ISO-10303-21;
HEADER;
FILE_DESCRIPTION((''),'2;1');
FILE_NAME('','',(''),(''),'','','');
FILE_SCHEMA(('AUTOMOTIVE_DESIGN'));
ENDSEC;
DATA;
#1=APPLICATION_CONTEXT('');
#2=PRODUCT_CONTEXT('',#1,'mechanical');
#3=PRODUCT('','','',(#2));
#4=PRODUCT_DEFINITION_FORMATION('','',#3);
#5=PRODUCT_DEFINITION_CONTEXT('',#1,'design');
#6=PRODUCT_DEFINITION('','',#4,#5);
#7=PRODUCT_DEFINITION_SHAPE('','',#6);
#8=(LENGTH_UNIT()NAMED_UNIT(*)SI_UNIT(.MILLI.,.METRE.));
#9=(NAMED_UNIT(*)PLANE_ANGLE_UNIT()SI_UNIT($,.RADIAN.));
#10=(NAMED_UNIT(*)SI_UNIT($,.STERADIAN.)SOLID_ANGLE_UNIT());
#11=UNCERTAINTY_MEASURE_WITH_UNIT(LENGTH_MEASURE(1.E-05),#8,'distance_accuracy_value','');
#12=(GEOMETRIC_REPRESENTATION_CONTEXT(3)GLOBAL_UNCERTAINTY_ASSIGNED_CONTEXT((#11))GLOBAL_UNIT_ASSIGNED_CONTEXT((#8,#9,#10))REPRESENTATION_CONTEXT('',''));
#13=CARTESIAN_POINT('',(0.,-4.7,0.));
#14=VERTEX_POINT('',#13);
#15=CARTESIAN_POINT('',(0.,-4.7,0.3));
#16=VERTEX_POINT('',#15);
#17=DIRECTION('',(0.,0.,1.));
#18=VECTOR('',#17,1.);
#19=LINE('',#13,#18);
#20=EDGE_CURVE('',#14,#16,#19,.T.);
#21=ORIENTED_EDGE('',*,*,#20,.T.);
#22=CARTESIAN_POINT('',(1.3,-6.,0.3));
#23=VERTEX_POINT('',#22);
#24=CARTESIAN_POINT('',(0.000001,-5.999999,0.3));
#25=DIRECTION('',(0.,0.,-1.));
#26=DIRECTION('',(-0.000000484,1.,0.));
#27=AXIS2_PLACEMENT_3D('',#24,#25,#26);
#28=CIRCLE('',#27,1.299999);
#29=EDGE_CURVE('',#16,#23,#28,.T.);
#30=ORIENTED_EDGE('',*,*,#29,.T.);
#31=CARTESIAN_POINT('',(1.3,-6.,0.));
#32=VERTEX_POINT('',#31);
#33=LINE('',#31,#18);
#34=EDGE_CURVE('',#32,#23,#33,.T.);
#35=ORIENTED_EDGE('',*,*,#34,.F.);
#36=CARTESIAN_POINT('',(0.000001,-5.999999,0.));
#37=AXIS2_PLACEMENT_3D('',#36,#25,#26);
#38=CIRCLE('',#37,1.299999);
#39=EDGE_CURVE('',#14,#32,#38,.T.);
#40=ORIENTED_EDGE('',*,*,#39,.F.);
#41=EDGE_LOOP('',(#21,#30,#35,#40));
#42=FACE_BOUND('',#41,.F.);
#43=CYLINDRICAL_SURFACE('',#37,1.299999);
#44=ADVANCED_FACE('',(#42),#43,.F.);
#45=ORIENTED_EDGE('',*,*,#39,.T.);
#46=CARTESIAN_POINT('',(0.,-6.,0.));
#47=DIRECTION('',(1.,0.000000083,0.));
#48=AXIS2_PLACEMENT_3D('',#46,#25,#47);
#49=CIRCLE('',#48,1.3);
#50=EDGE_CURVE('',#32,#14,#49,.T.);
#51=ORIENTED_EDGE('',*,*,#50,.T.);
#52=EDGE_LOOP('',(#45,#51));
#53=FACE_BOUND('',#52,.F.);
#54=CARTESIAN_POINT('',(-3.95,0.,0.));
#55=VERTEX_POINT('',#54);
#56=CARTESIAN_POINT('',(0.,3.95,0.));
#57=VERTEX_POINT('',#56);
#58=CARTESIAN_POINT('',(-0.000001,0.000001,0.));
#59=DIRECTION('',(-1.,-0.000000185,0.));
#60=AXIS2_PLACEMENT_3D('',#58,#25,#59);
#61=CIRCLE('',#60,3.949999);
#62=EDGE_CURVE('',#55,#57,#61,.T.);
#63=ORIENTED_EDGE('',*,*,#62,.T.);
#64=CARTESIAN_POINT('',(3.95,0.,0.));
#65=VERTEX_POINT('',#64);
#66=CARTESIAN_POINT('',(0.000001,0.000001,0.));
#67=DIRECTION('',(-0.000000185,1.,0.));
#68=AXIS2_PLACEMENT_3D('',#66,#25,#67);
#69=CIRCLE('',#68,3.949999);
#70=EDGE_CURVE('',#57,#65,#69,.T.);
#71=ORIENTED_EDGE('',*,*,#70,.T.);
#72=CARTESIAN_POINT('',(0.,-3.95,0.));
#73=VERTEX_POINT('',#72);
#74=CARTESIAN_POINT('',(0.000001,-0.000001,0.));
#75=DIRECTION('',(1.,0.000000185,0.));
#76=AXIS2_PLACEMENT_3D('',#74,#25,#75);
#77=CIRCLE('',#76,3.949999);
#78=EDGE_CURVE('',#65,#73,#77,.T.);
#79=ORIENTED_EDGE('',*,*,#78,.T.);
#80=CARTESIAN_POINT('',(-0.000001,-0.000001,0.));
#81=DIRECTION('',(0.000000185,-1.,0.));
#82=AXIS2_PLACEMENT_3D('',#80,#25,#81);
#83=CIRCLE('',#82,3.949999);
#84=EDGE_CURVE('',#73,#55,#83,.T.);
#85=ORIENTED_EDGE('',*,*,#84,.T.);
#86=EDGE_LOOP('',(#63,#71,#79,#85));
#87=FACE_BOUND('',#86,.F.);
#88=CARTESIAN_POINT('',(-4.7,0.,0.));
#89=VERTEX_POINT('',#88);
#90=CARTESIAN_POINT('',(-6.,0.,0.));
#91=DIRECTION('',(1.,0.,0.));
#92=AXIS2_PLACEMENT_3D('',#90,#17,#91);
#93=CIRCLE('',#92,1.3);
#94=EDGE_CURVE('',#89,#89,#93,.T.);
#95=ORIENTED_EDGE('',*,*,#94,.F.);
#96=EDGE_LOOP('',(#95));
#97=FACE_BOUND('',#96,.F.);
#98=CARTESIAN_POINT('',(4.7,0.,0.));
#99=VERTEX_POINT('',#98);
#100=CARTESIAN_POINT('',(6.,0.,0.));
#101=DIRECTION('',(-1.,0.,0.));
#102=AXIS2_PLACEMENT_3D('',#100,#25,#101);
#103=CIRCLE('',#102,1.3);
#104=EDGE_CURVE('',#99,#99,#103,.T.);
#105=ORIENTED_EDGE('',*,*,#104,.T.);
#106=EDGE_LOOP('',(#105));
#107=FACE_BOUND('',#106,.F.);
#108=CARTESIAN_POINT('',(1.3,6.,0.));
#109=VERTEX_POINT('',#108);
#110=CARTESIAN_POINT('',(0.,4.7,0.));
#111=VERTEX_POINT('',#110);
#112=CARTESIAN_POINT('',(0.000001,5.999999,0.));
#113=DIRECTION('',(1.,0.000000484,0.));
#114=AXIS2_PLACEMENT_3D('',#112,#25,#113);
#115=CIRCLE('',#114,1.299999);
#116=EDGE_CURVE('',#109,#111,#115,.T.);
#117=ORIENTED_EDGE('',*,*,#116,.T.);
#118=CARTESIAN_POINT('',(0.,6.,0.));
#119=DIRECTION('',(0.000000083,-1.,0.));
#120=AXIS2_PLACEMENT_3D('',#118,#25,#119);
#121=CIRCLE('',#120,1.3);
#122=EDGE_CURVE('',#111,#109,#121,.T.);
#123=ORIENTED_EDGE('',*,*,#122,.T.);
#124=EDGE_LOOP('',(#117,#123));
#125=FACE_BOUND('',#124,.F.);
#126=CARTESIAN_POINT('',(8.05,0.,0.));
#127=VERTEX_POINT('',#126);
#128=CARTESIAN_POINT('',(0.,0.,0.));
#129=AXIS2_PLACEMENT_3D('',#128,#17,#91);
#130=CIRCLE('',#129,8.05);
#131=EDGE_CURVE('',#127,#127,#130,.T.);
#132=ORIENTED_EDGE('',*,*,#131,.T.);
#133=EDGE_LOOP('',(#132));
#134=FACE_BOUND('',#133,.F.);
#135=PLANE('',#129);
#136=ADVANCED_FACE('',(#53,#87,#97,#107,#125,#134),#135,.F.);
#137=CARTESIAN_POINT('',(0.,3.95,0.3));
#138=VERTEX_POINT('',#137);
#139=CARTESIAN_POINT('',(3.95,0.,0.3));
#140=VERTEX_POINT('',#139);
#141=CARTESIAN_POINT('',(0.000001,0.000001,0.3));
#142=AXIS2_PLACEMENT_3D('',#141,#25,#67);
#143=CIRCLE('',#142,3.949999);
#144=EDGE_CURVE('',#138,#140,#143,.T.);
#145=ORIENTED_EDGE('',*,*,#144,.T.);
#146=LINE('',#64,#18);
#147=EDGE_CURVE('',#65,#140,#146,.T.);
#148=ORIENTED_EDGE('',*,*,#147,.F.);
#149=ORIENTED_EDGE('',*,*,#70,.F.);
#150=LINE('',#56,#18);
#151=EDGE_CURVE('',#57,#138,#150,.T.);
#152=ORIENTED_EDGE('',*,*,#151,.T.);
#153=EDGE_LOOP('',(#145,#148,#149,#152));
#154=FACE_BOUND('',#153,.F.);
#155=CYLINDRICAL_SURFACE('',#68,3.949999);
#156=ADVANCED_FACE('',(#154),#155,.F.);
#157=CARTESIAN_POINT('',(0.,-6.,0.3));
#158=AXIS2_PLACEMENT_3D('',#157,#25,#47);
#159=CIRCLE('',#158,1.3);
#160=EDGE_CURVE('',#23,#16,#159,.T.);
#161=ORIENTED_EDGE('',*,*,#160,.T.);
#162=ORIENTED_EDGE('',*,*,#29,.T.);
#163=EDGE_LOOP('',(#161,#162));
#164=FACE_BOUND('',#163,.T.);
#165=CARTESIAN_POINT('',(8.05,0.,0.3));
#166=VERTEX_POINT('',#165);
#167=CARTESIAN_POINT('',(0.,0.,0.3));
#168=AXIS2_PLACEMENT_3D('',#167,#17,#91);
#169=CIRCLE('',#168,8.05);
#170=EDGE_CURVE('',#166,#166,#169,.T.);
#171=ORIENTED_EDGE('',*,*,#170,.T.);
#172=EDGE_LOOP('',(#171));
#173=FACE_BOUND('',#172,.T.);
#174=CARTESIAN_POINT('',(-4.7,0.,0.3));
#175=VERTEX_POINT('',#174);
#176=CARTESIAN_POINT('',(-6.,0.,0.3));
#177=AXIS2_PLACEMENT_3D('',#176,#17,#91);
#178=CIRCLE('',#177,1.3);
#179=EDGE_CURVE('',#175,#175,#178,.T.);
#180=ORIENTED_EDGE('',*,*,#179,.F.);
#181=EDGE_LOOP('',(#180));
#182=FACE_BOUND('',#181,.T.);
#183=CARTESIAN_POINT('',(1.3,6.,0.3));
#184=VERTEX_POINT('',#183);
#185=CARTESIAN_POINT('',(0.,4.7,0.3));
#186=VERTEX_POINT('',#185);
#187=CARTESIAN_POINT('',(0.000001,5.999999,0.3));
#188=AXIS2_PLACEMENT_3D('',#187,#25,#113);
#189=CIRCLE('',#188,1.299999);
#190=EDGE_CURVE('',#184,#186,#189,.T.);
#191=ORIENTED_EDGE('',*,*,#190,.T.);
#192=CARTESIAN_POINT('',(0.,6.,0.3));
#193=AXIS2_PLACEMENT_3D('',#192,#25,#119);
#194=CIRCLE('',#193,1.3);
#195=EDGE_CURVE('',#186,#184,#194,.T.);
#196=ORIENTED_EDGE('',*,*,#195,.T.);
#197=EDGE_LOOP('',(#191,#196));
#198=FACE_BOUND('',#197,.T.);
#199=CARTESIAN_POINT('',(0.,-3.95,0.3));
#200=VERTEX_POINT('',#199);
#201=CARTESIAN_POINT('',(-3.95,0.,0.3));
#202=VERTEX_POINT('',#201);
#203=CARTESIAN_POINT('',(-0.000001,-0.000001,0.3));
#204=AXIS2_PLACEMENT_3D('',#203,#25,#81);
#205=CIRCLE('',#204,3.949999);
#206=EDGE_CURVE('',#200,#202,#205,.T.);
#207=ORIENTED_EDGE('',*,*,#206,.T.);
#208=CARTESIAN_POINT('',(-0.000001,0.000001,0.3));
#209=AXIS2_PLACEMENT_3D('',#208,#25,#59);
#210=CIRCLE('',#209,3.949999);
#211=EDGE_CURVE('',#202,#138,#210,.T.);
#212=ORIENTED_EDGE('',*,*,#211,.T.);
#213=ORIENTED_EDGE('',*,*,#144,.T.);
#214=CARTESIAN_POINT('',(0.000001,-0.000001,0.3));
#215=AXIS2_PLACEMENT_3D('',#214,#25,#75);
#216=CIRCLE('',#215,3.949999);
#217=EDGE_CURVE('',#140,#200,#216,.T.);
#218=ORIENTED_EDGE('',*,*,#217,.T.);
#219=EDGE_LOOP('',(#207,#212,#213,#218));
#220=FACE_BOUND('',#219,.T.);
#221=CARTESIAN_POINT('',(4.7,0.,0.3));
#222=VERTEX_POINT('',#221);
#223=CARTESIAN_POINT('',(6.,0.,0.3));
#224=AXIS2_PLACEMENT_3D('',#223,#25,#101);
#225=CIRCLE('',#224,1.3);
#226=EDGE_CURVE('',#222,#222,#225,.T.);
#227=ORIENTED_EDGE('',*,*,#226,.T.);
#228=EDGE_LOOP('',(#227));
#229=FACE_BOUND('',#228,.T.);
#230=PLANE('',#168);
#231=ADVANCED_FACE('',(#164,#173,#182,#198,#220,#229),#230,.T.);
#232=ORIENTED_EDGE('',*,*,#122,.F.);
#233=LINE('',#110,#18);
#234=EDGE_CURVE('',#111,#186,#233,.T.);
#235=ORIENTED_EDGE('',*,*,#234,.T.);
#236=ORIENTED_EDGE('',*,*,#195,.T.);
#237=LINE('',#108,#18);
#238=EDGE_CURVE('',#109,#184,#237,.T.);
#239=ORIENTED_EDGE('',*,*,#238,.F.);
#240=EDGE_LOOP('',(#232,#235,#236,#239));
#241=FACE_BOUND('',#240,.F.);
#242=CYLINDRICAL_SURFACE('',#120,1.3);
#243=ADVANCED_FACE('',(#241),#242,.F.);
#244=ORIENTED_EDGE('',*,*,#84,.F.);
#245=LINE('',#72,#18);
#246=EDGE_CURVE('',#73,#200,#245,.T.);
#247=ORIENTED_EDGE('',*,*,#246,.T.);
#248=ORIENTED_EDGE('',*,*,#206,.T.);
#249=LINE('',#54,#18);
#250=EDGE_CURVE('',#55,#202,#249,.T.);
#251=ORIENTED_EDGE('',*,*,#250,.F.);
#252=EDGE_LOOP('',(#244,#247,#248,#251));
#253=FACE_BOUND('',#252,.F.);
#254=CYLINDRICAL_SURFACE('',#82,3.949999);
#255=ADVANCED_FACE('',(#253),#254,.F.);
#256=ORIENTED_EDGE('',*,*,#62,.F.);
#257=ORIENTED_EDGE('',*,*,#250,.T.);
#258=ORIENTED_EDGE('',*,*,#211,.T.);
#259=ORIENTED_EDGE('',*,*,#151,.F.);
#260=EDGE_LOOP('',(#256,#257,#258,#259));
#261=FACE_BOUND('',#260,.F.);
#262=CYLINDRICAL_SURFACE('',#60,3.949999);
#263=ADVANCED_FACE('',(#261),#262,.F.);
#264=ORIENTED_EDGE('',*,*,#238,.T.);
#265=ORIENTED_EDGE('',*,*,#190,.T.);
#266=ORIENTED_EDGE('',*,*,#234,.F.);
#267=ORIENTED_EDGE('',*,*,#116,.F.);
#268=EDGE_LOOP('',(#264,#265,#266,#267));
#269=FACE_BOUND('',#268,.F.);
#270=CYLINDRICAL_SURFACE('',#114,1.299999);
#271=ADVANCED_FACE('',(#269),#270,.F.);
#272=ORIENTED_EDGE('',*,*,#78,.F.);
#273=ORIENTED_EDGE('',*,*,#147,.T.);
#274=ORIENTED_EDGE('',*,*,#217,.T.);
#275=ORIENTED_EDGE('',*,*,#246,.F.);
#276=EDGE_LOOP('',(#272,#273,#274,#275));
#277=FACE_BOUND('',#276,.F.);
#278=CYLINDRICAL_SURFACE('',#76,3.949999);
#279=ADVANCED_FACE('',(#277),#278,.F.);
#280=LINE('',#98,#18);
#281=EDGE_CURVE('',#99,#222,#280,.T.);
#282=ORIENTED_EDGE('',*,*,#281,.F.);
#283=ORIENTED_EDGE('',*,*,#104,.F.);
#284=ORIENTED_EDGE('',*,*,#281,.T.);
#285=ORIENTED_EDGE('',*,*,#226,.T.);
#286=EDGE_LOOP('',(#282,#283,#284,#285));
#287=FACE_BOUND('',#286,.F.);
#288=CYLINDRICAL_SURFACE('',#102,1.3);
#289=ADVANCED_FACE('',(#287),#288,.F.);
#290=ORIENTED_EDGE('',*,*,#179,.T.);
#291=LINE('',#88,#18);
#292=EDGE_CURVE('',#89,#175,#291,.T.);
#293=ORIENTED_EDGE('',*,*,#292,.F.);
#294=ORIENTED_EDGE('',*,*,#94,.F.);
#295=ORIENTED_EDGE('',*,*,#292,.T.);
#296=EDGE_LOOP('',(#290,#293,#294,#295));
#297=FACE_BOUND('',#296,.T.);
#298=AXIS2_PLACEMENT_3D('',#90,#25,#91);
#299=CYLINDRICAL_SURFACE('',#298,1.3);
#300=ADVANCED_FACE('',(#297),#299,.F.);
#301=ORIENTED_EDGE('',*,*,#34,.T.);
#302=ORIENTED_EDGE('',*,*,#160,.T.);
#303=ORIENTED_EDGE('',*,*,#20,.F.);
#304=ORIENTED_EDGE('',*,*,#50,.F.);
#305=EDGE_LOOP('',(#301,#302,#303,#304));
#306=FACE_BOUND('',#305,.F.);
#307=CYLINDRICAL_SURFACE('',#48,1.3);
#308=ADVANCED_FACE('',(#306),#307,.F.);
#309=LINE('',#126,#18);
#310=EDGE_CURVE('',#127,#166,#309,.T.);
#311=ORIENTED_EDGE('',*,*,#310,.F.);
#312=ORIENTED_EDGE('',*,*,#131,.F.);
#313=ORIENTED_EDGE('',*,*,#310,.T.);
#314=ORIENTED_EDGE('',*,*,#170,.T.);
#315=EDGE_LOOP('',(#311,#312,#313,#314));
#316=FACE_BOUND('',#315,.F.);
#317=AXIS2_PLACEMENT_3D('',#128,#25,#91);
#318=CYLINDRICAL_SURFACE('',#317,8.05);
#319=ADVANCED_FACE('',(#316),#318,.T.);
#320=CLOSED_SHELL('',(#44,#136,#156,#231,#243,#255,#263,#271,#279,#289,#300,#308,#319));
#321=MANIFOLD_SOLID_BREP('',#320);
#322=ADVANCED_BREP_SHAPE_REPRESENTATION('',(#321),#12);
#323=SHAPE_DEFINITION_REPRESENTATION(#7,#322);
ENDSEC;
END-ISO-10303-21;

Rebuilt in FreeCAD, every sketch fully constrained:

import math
import FreeCAD as App
import Part
import Sketcher
from FreeCAD import Vector

doc = App.newDocument("Part")
params = doc.addObject("Spreadsheet::Sheet", "Params")
for row, (alias, value) in enumerate([
    ("sketch1_diameter", "16.1 mm"),
    ("sketch1_diameter2", "2.6 mm"),
    ("sketch1_radius", "3.949999 mm"),
    ("pad1_length", "0.3 mm"),
], start=1):
    params.set(f"A{row}", alias)
    params.set(f"B{row}", "=" + value)
    params.setAlias(f"B{row}", alias)

body = doc.addObject("PartDesign::Body", "Body")

# Sketch on XY plane
sketch1 = doc.addObject("Sketcher::SketchObject", "Sketch")
body.addObject(sketch1)
sketch1.AttachmentSupport = (doc.XY_Plane, [""])
sketch1.MapMode = "FlatFace"
sketch1.addGeometry(Part.Circle(Vector(0, 0, 0), Vector(0, 0, 1), 8.05), False)
sketch1.addGeometry(Part.ArcOfCircle(Part.Circle(Vector(0.000001, -5.999999, 0), Vector(0, 0, 1), 1.299999), math.radians(-0.000028), math.radians(90.000028)), False)
sketch1.addGeometry(Part.ArcOfCircle(Part.Circle(Vector(0, -6, 0), Vector(0, 0, 1), 1.3), math.radians(89.999995), math.radians(360.000005)), False)
sketch1.addGeometry(Part.Circle(Vector(-6, 0, 0), Vector(0, 0, 1), 1.3), False)
sketch1.addGeometry(Part.ArcOfCircle(Part.Circle(Vector(0, 6, 0), Vector(0, 0, 1), 1.3), math.radians(-0.000005), math.radians(270.000005)), False)
sketch1.addGeometry(Part.ArcOfCircle(Part.Circle(Vector(0.000001, 5.999999, 0), Vector(0, 0, 1), 1.299999), math.radians(-90.000028), math.radians(0.000028)), False)
sketch1.addGeometry(Part.ArcOfCircle(Part.Circle(Vector(0.000001, -0.000001, 0), Vector(0, 0, 1), 3.949999), math.radians(-90.000011), math.radians(0.000011)), False)
sketch1.addGeometry(Part.ArcOfCircle(Part.Circle(Vector(-0.000001, -0.000001, 0), Vector(0, 0, 1), 3.949999), math.radians(179.999989), math.radians(270.000011)), False)
sketch1.addGeometry(Part.ArcOfCircle(Part.Circle(Vector(-0.000001, 0.000001, 0), Vector(0, 0, 1), 3.949999), math.radians(89.999989), math.radians(180.000011)), False)
sketch1.addGeometry(Part.ArcOfCircle(Part.Circle(Vector(0.000001, 0.000001, 0), Vector(0, 0, 1), 3.949999), math.radians(-0.000011), math.radians(90.000011)), False)
sketch1.addGeometry(Part.Circle(Vector(6, 0, 0), Vector(0, 0, 1), 1.3), False)
sketch1.addConstraint(Sketcher.Constraint("Tangent", 1, 1, 2, 2))
sketch1.addConstraint(Sketcher.Constraint("Coincident", 2, 1, 1, 2))
sketch1.addConstraint(Sketcher.Constraint("Tangent", 4, 1, 5, 2))
sketch1.addConstraint(Sketcher.Constraint("Coincident", 5, 1, 4, 2))
sketch1.addConstraint(Sketcher.Constraint("Tangent", 6, 1, 7, 2))
sketch1.addConstraint(Sketcher.Constraint("Tangent", 7, 1, 8, 2))
sketch1.addConstraint(Sketcher.Constraint("Tangent", 8, 1, 9, 2))
sketch1.addConstraint(Sketcher.Constraint("Tangent", 9, 1, 6, 2))
sketch1.addConstraint(Sketcher.Constraint("Coincident", 0, 3, -1, 1))
sketch1.addConstraint(Sketcher.Constraint("Coincident", 6, 3, -1, 1))
sketch1.addConstraint(Sketcher.Constraint("Equal", 2, 3))
sketch1.addConstraint(Sketcher.Constraint("Equal", 3, 4))
sketch1.addConstraint(Sketcher.Constraint("Equal", 6, 7))
sketch1.addConstraint(Sketcher.Constraint("Equal", 5, 10))
sketch1.addConstraint(Sketcher.Constraint("Symmetric", 1, 3, 4, 3, -1, 1))
sketch1.addConstraint(Sketcher.Constraint("Symmetric", 3, 3, 10, 3, -1, 1))
sketch1.addConstraint(Sketcher.Constraint("Symmetric", 1, 1, 4, 1, -1))
sketch1.addConstraint(Sketcher.Constraint("PointOnObject", 3, 3, -1))
sketch1.addConstraint(Sketcher.Constraint("PointOnObject", 2, 1, -2))
sketch1.addConstraint(Sketcher.Constraint("PointOnObject", 5, 1, -2))
sketch1.addConstraint(Sketcher.Constraint("PointOnObject", 6, 1, -2))
sketch1.addConstraint(Sketcher.Constraint("PointOnObject", 7, 1, -1))
sketch1.addConstraint(Sketcher.Constraint("PointOnObject", 8, 1, -2))
sketch1.addConstraint(Sketcher.Constraint("PointOnObject", 9, 1, -1))
sketch1.addConstraint(Sketcher.Constraint("Horizontal", 2, 3, 1, 1))
sketch1.addConstraint(Sketcher.Constraint("Diameter", 0, 16.1))
sketch1.addConstraint(Sketcher.Constraint("Diameter", 3, 2.6))
sketch1.addConstraint(Sketcher.Constraint("Radius", 6, 3.949999))
sketch1.addConstraint(Sketcher.Constraint("DistanceY", 1, 3, -1, 1, 5.999999))
sketch1.addConstraint(Sketcher.Constraint("DistanceX", 3, 3, -1, 1, 6.0))
sketch1.setExpression("Constraints[25]", "Params.sketch1_diameter")
sketch1.setExpression("Constraints[26]", "Params.sketch1_diameter2")
sketch1.setExpression("Constraints[27]", "Params.sketch1_radius")
pad1 = doc.addObject("PartDesign::Pad", "Pad")
body.addObject(pad1)
pad1.Profile = sketch1
pad1.setExpression("Length", "Params.pad1_length")

doc.recompute()
